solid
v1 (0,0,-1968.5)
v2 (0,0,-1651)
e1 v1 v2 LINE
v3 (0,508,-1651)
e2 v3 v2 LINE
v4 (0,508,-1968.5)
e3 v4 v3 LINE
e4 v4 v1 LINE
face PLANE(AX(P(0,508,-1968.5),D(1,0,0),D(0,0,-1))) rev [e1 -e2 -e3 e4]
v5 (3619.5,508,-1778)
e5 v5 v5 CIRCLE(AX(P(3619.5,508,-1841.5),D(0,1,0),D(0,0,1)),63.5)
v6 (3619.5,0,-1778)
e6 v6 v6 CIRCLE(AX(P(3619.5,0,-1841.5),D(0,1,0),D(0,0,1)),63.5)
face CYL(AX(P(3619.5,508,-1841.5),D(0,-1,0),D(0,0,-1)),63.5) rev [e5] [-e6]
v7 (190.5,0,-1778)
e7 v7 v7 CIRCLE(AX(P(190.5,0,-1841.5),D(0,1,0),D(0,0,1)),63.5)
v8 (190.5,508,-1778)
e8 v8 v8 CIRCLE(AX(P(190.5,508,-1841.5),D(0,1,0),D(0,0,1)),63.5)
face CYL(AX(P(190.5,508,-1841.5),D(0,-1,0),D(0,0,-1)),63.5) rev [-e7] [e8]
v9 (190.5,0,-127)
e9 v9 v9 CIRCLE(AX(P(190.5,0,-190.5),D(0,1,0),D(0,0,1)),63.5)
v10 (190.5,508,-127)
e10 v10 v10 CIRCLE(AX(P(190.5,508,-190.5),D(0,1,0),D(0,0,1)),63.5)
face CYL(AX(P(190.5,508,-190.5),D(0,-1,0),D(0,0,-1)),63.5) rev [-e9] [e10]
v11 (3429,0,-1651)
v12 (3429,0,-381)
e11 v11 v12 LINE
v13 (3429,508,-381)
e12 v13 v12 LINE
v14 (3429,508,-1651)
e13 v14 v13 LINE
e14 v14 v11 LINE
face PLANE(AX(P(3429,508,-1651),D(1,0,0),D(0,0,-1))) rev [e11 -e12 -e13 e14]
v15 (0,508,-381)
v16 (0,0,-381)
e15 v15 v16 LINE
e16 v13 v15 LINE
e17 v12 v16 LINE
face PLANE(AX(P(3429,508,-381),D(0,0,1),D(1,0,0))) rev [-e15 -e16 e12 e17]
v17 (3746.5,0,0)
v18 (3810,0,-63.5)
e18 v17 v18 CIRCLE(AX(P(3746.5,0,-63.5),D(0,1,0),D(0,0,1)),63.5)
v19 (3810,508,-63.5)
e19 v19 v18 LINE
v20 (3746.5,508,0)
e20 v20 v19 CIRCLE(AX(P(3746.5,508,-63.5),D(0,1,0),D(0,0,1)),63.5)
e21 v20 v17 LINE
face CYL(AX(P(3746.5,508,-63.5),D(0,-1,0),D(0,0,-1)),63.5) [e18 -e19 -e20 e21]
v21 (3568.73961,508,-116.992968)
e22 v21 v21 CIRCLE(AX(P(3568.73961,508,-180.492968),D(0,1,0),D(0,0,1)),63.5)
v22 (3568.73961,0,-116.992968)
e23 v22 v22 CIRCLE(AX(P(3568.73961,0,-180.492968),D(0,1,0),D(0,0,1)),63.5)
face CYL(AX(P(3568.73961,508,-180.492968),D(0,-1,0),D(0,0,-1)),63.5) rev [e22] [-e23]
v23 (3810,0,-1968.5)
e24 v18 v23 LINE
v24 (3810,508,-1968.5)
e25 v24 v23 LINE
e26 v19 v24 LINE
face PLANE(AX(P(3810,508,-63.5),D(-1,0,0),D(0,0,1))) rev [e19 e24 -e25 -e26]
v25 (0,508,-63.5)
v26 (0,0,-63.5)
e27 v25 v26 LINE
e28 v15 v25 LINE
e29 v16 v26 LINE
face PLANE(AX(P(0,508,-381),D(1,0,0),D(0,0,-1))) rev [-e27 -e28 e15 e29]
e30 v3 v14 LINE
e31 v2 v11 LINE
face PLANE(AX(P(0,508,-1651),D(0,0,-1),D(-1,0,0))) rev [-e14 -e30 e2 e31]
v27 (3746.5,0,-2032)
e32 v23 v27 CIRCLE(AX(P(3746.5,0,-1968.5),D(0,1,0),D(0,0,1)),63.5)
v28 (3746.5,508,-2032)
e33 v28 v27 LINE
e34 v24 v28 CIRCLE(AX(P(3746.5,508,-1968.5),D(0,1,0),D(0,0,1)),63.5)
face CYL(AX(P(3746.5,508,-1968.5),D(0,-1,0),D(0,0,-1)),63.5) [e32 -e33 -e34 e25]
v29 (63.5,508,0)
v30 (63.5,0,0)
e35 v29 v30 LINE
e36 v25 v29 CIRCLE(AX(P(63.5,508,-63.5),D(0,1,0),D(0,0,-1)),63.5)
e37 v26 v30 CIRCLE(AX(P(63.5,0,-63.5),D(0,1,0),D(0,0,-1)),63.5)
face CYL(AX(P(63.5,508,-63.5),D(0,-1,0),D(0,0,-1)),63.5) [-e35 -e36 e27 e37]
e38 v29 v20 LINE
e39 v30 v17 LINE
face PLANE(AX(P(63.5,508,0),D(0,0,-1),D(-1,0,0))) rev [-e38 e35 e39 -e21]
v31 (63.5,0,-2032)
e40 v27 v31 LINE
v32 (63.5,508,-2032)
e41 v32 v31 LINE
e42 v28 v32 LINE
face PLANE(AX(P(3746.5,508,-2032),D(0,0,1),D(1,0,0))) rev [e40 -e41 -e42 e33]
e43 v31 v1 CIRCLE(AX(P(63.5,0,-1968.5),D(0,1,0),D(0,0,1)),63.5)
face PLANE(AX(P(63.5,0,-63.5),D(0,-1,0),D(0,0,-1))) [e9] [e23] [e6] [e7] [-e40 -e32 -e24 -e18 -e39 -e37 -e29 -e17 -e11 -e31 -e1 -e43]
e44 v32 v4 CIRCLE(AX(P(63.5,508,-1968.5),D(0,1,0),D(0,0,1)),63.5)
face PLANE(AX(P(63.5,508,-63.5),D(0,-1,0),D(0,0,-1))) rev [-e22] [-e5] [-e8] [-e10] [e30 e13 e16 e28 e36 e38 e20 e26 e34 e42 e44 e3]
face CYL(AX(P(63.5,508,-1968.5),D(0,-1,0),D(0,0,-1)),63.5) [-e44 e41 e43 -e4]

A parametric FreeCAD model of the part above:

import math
import FreeCAD as App
import Part
import Sketcher

V = App.Vector
Q = App.Units.Quantity

doc = App.newDocument("Part")
body = doc.addObject("PartDesign::Body", "Body")

sketch1 = body.newObject("Sketcher::SketchObject", "Sketch")
sketch1.AttachmentSupport = (doc.getObject("XZ_Plane"), [""])
sketch1.MapMode = "FlatFace"
sketch1.addGeometry(Part.LineSegment(V(63.5, 0, 0), V(3746.5, 0, 0)), False)
sketch1.addGeometry(Part.ArcOfCircle(Part.Circle(V(3746.5, -63.5, 0), V(0, 0, 1), 63.5), math.radians(0), math.radians(90)), False)
sketch1.addGeometry(Part.LineSegment(V(3810, -63.5, 0), V(3810, -1968.5, 0)), False)
sketch1.addGeometry(Part.ArcOfCircle(Part.Circle(V(3746.5, -1968.5, 0), V(0, 0, 1), 63.5), math.radians(-90), math.radians(0)), False)
sketch1.addGeometry(Part.LineSegment(V(3746.5, -2032, 0), V(63.5, -2032, 0)), False)
sketch1.addGeometry(Part.ArcOfCircle(Part.Circle(V(63.5, -1968.5, 0), V(0, 0, 1), 63.5), math.radians(-180), math.radians(-90)), False)
sketch1.addGeometry(Part.LineSegment(V(0, -1968.5, 0), V(0, -1651, 0)), False)
sketch1.addGeometry(Part.LineSegment(V(0, -1651, 0), V(3429, -1651, 0)), False)
sketch1.addGeometry(Part.LineSegment(V(3429, -1651, 0), V(3429, -381, 0)), False)
sketch1.addGeometry(Part.LineSegment(V(3429, -381, 0), V(0, -381, 0)), False)
sketch1.addGeometry(Part.LineSegment(V(0, -381, 0), V(0, -63.5, 0)), False)
sketch1.addGeometry(Part.ArcOfCircle(Part.Circle(V(63.5, -63.5, 0), V(0, 0, 1), 63.5), math.radians(90), math.radians(180)), False)
sketch1.addGeometry(Part.Circle(V(190.5, -190.5, 0), V(0, 0, 1), 63.5), False)
sketch1.addGeometry(Part.Circle(V(3568.73961, -180.492968, 0), V(0, 0, 1), 63.5), False)
sketch1.addGeometry(Part.Circle(V(190.5, -1841.5, 0), V(0, 0, 1), 63.5), False)
sketch1.addGeometry(Part.Circle(V(3619.5, -1841.5, 0), V(0, 0, 1), 63.5), False)
sketch1.addConstraint(Sketcher.Constraint("Tangent", 0, 2, 1, 2))
sketch1.addConstraint(Sketcher.Constraint("Tangent", 1, 1, 2, 1))
sketch1.addConstraint(Sketcher.Constraint("Tangent", 2, 2, 3, 2))
sketch1.addConstraint(Sketcher.Constraint("Tangent", 3, 1, 4, 1))
sketch1.addConstraint(Sketcher.Constraint("Tangent", 4, 2, 5, 2))
sketch1.addConstraint(Sketcher.Constraint("Tangent", 5, 1, 6, 1))
sketch1.addConstraint(Sketcher.Constraint("Coincident", 6, 2, 7, 1))
sketch1.addConstraint(Sketcher.Constraint("Coincident", 7, 2, 8, 1))
sketch1.addConstraint(Sketcher.Constraint("Coincident", 8, 2, 9, 1))
sketch1.addConstraint(Sketcher.Constraint("Coincident", 9, 2, 10, 1))
sketch1.addConstraint(Sketcher.Constraint("Tangent", 10, 2, 11, 2))
sketch1.addConstraint(Sketcher.Constraint("Tangent", 11, 1, 0, 1))
sketch1.addConstraint(Sketcher.Constraint("Horizontal", 0))
sketch1.addConstraint(Sketcher.Constraint("Vertical", 2))
sketch1.addConstraint(Sketcher.Constraint("Horizontal", 4))
sketch1.addConstraint(Sketcher.Constraint("Vertical", 6))
sketch1.addConstraint(Sketcher.Constraint("Horizontal", 7))
sketch1.addConstraint(Sketcher.Constraint("Vertical", 8))
sketch1.addConstraint(Sketcher.Constraint("Horizontal", 9))
sketch1.addConstraint(Sketcher.Constraint("Vertical", 10))
sketch1.addConstraint(Sketcher.Constraint("Equal", 1, 3))
sketch1.addConstraint(Sketcher.Constraint("Equal", 3, 5))
sketch1.addConstraint(Sketcher.Constraint("Equal", 5, 11))
sketch1.addConstraint(Sketcher.Constraint("Equal", 11, 12))
sketch1.addConstraint(Sketcher.Constraint("Equal", 12, 13))
sketch1.addConstraint(Sketcher.Constraint("Equal", 13, 14))
sketch1.addConstraint(Sketcher.Constraint("Equal", 14, 15))
sketch1.addConstraint(Sketcher.Constraint("PointOnObject", 0, 2, -1))
sketch1.addConstraint(Sketcher.Constraint("PointOnObject", 5, 1, -2))
sketch1.addConstraint(Sketcher.Constraint("PointOnObject", 9, 2, -2))
sketch1.addConstraint(Sketcher.Constraint("Horizontal", 14, 3, 15, 3))
sketch1.addConstraint(Sketcher.Constraint("Vertical", 12, 3, 14, 3))
sketch1.addConstraint(Sketcher.Constraint("Equal", 6, 10))
sketch1.addConstraint(Sketcher.Constraint("Diameter", 12, Q("5 in")))
sketch1.addConstraint(Sketcher.Constraint("DistanceX", 0, 1, 0, 2, Q("145 in")))
sketch1.addConstraint(Sketcher.Constraint("DistanceX", 7, 1, 7, 2, Q("135 in")))
sketch1.addConstraint(Sketcher.Constraint("DistanceY", 2, 2, 2, 1, Q("75 in")))
sketch1.addConstraint(Sketcher.Constraint("DistanceY", 8, 1, 8, 2, Q("50 in")))
sketch1.addConstraint(Sketcher.Constraint("DistanceX", 11, 3, 12, 3, Q("5 in")))
sketch1.addConstraint(Sketcher.Constraint("DistanceY", 12, 3, 11, 3, Q("5 in")))
sketch1.addConstraint(Sketcher.Constraint("DistanceY", 5, 3, 14, 3, Q("5 in")))
sketch1.addConstraint(Sketcher.Constraint("DistanceX", 15, 3, 3, 3, Q("5 in")))
sketch1.addConstraint(Sketcher.Constraint("DistanceX", -1, 1, 13, 3, 3568.73961))
sketch1.addConstraint(Sketcher.Constraint("DistanceY", 13, 3, -1, 1, 180.492968))
pad1 = body.newObject("PartDesign::Pad", "Pad")
pad1.Profile = sketch1
pad1.Length = Q("20 in")
pad1.Reversed = True

doc.recompute()
